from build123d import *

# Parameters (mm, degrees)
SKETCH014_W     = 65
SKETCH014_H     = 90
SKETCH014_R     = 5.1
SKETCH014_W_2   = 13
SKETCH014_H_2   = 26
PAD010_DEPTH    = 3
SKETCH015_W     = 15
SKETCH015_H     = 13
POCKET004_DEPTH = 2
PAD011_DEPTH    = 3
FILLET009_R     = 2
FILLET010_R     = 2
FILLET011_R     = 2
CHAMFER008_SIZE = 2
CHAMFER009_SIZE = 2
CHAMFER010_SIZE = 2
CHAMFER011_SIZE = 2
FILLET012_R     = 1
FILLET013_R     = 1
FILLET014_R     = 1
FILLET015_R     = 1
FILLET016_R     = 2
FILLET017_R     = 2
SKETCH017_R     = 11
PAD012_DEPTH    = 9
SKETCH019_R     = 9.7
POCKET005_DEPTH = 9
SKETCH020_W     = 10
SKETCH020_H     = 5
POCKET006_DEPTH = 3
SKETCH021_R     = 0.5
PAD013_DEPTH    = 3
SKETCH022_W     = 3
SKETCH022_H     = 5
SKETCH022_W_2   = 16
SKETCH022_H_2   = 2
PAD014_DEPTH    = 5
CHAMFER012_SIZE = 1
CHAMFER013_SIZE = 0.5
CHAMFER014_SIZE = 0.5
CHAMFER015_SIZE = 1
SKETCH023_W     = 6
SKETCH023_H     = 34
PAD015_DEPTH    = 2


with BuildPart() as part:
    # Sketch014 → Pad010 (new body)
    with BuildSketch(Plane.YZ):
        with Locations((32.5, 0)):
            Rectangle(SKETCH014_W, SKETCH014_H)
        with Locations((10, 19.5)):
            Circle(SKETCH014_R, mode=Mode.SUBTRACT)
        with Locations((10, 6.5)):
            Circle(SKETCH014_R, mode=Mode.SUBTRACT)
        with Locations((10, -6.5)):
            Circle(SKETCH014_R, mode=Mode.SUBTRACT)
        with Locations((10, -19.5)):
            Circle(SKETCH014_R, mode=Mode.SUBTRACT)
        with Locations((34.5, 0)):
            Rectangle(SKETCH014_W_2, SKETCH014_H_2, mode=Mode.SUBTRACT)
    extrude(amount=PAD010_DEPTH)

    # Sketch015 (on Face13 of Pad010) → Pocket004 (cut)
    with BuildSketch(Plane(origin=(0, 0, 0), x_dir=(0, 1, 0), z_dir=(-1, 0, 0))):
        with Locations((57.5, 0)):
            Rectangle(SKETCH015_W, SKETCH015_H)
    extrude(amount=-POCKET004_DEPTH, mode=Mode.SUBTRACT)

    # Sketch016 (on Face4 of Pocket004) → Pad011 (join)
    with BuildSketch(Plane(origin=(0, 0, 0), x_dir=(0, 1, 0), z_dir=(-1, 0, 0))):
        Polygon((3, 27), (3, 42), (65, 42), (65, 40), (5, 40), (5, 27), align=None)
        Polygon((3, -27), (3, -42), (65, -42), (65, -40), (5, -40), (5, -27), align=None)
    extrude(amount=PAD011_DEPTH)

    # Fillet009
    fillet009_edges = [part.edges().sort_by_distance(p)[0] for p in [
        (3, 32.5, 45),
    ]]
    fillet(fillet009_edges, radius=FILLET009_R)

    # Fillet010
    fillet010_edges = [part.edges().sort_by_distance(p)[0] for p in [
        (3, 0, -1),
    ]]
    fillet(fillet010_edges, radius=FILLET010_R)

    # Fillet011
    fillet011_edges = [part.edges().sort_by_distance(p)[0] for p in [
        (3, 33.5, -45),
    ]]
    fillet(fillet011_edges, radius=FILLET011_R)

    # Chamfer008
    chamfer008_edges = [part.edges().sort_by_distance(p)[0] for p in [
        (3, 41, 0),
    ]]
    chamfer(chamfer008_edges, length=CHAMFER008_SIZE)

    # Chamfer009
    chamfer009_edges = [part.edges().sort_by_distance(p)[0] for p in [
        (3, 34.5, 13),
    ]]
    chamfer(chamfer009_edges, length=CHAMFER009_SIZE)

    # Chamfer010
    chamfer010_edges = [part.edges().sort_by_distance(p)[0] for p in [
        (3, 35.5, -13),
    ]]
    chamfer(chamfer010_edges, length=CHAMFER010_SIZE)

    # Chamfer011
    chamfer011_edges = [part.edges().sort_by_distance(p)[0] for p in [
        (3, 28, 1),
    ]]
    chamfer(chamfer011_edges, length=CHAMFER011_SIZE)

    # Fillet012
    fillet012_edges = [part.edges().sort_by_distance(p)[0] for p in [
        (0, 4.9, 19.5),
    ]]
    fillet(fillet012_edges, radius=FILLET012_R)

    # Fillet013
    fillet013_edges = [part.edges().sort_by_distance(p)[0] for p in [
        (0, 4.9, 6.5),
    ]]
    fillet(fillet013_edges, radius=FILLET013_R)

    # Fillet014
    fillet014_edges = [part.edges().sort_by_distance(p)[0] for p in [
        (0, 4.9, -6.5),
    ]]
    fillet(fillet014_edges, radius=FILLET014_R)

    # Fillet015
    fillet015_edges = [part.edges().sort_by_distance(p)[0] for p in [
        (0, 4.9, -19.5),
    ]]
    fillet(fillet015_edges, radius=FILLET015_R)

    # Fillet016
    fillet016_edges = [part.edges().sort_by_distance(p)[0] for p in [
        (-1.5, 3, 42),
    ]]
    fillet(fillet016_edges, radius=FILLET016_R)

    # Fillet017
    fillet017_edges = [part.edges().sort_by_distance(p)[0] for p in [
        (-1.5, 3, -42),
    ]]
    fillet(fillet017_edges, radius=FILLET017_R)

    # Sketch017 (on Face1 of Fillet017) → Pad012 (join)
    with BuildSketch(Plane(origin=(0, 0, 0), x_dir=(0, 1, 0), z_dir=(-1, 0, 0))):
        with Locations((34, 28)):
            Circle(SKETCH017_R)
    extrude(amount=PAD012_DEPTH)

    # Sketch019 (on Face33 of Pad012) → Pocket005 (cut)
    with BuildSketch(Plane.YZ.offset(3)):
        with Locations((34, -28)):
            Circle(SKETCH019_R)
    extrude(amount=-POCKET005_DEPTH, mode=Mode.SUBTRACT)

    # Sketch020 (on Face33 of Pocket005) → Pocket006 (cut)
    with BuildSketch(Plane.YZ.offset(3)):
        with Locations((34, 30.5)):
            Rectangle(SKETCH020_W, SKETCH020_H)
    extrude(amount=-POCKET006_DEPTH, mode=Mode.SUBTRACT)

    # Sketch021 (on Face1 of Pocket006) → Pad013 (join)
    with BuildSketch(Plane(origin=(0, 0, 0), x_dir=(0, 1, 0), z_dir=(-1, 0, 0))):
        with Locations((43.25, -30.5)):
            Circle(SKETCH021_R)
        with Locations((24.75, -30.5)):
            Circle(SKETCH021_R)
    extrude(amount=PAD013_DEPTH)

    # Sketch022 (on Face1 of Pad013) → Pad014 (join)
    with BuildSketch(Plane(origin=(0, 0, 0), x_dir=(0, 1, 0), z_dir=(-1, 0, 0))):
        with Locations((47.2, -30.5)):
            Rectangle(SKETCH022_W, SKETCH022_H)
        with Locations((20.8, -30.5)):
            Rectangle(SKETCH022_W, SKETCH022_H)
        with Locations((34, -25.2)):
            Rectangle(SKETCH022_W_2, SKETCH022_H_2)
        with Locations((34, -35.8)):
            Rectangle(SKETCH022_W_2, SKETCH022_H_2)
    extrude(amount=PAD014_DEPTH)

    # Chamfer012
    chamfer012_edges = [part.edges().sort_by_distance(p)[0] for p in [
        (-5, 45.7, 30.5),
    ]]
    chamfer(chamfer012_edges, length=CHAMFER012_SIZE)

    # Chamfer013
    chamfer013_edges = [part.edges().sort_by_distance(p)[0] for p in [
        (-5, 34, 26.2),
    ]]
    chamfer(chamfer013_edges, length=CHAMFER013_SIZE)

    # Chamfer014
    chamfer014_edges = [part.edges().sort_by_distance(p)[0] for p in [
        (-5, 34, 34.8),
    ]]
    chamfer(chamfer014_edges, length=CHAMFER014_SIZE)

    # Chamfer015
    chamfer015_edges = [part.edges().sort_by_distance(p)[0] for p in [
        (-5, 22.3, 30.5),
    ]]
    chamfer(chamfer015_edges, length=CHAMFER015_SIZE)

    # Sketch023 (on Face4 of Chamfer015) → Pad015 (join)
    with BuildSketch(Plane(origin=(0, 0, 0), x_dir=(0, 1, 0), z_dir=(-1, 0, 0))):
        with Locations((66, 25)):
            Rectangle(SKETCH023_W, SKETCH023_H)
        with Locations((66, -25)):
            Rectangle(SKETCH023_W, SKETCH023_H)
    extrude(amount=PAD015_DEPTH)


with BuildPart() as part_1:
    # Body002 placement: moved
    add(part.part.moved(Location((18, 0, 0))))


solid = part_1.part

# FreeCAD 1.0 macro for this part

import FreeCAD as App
import Part
import Sketcher

V = App.Vector


def edges_at(feature, points):
    """Names of the edges that pass closest to the given points."""
    edges = feature.Shape.Edges
    near = lambda p: min(range(len(edges)), key=lambda i: edges[i].distToShape(Part.Vertex(*p))[0])
    return sorted({f"Edge{near(p) + 1}" for p in points})


def add_polygon(sketch, points):
    """Adds a closed chain of lines whose ends are joined by coincident constraints."""
    first, n = sketch.GeometryCount, len(points)
    for a, b in zip(points, points[1:] + points[:1]):
        sketch.addGeometry(Part.LineSegment(App.Vector(*a, 0), App.Vector(*b, 0)), False)
    for i in range(n):
        sketch.addConstraint(Sketcher.Constraint("Coincident", first + i, 2, first + (i + 1) % n, 1))

doc = App.newDocument("Part")
params = doc.addObject("Spreadsheet::Sheet", "Params")
for row, (alias, value) in enumerate([
    ("sketch1_diameter", "10.2 mm"),
    ("sketch1_width", "65 mm"),
    ("sketch1_width2", "13 mm"),
    ("sketch1_height", "90 mm"),
    ("sketch1_height2", "26 mm"),
    ("pad1_length", "3 mm"),
    ("sketch2_width", "15 mm"),
    ("sketch2_height", "13 mm"),
    ("pocket1_length", "2 mm"),
    ("sketch3_width", "2 mm"),
    ("sketch3_width2", "60 mm"),
    ("sketch3_height", "15 mm"),
    ("pad2_length", "3 mm"),
    ("fillet_radius", "2 mm"),
    ("fillet2_radius", "2 mm"),
    ("fillet3_radius", "2 mm"),
    ("chamfer_size", "2 mm"),
    ("chamfer2_size", "2 mm"),
    ("chamfer3_size", "2 mm"),
    ("chamfer4_size", "2 mm"),
    ("fillet4_radius", "1 mm"),
    ("fillet5_radius", "1 mm"),
    ("fillet6_radius", "1 mm"),
    ("fillet7_radius", "1 mm"),
    ("fillet8_radius", "2 mm"),
    ("fillet9_radius", "2 mm"),
    ("sketch4_diameter", "22 mm"),
    ("pad3_length", "9 mm"),
    ("sketch5_diameter", "19.4 mm"),
    ("pocket2_length", "9 mm"),
    ("sketch6_width", "10 mm"),
    ("sketch6_height", "5 mm"),
    ("pocket3_length", "3 mm"),
    ("sketch7_diameter", "1 mm"),
    ("pad4_length", "3 mm"),
    ("sketch8_width", "3 mm"),
    ("sketch8_width2", "16 mm"),
    ("sketch8_height", "5 mm"),
    ("sketch8_height2", "2 mm"),
    ("pad5_length", "5 mm"),
    ("chamfer5_size", "1 mm"),
    ("chamfer6_size", "0.5 mm"),
    ("chamfer7_size", "0.5 mm"),
    ("chamfer8_size", "1 mm"),
    ("sketch9_width", "6 mm"),
    ("sketch9_height", "34 mm"),
    ("pad6_length", "2 mm"),
], start=1):
    params.set(f"A{row}", alias)
    params.set(f"B{row}", "=" + value)
    params.setAlias(f"B{row}", alias)

body = doc.addObject("PartDesign::Body", "Body")

sketch1 = body.newObject("Sketcher::SketchObject", "Sketch")
sketch1.AttachmentSupport = (doc.getObject("YZ_Plane"), [""])
sketch1.MapMode = "FlatFace"
add_polygon(sketch1, [(0, 45), (0, -45), (65, -45), (65, 45)])
sketch1.addGeometry(Part.Circle(V(10, -19.5, 0), V(0, 0, 1), 5.1), False)
sketch1.addGeometry(Part.Circle(V(10, -6.5, 0), V(0, 0, 1), 5.1), False)
sketch1.addGeometry(Part.Circle(V(10, 6.5, 0), V(0, 0, 1), 5.1), False)
sketch1.addGeometry(Part.Circle(V(10, 19.5, 0), V(0, 0, 1), 5.1), False)
add_polygon(sketch1, [(41, -13), (28, -13), (28, 13), (41, 13)])
sketch1.addConstraint(Sketcher.Constraint("Vertical", 0))
sketch1.addConstraint(Sketcher.Constraint("Horizontal", 1))
sketch1.addConstraint(Sketcher.Constraint("Vertical", 2))
sketch1.addConstraint(Sketcher.Constraint("Horizontal", 3))
sketch1.addConstraint(Sketcher.Constraint("Horizontal", 8))
sketch1.addConstraint(Sketcher.Constraint("Vertical", 9))
sketch1.addConstraint(Sketcher.Constraint("Horizontal", 10))
sketch1.addConstraint(Sketcher.Constraint("Vertical", 11))
sketch1.addConstraint(Sketcher.Constraint("Equal", 4, 5))
sketch1.addConstraint(Sketcher.Constraint("Equal", 5, 6))
sketch1.addConstraint(Sketcher.Constraint("Equal", 6, 7))
sketch1.addConstraint(Sketcher.Constraint("Symmetric", 0, 2, 3, 2, -1, 1))
sketch1.addConstraint(Sketcher.Constraint("Symmetric", 5, 3, 6, 3, -1))
sketch1.addConstraint(Sketcher.Constraint("Symmetric", 4, 3, 7, 3, -1))
sketch1.addConstraint(Sketcher.Constraint("Vertical", 4, 3, 5, 3))
sketch1.addConstraint(Sketcher.Constraint("Diameter", 4, 10.2))
sketch1.addConstraint(Sketcher.Constraint("DistanceX", 1, 1, 1, 2, 65.0))
sketch1.addConstraint(Sketcher.Constraint("DistanceX", 8, 2, 8, 1, 13.0))
sketch1.addConstraint(Sketcher.Constraint("DistanceY", 0, 2, 0, 1, 90.0))
sketch1.addConstraint(Sketcher.Constraint("DistanceY", 9, 1, 9, 2, 26.0))
sketch1.addConstraint(Sketcher.Constraint("DistanceX", -1, 1, 4, 3, 10.0))
sketch1.addConstraint(Sketcher.Constraint("DistanceX", -1, 1, 8, 2, 28.0))
sketch1.addConstraint(Sketcher.Constraint("DistanceY", 8, 2, -1, 1, 13.0))
sketch1.addConstraint(Sketcher.Constraint("DistanceY", 4, 3, 5, 3, 13.0))
sketch1.addConstraint(Sketcher.Constraint("DistanceY", 5, 3, 6, 3, 13.0))
sketch1.setExpression("Constraints[23]", "Params.sketch1_diameter")
sketch1.setExpression("Constraints[24]", "Params.sketch1_width")
sketch1.setExpression("Constraints[25]", "Params.sketch1_width2")
sketch1.setExpression("Constraints[26]", "Params.sketch1_height")
sketch1.setExpression("Constraints[27]", "Params.sketch1_height2")
pad1 = body.newObject("PartDesign::Pad", "Pad")
pad1.Profile = sketch1
pad1.setExpression("Length", "Params.pad1_length")

sketch2 = body.newObject("Sketcher::SketchObject", "Sketch001")
sketch2.AttachmentSupport = (doc.getObject("YZ_Plane"), [""])
sketch2.MapMode = "FlatFace"
add_polygon(sketch2, [(50, -6.5), (50, 6.5), (65, 6.5), (65, -6.5)])
sketch2.addConstraint(Sketcher.Constraint("Vertical", 0))
sketch2.addConstraint(Sketcher.Constraint("Horizontal", 1))
sketch2.addConstraint(Sketcher.Constraint("Vertical", 2))
sketch2.addConstraint(Sketcher.Constraint("Horizontal", 3))
sketch2.addConstraint(Sketcher.Constraint("DistanceX", 1, 1, 1, 2, 15.0))
sketch2.addConstraint(Sketcher.Constraint("DistanceY", 0, 1, 0, 2, 13.0))
sketch2.addConstraint(Sketcher.Constraint("DistanceX", -1, 1, 0, 2, 50.0))
sketch2.addConstraint(Sketcher.Constraint("DistanceY", -1, 1, 0, 2, 6.5))
sketch2.setExpression("Constraints[8]", "Params.sketch2_width")
sketch2.setExpression("Constraints[9]", "Params.sketch2_height")
pocket1 = body.newObject("PartDesign::Pocket", "Pocket")
pocket1.Profile = sketch2
pocket1.setExpression("Length", "Params.pocket1_length")
pocket1.Reversed = True

sketch3 = body.newObject("Sketcher::SketchObject", "Sketch002")
sketch3.AttachmentSupport = (doc.getObject("YZ_Plane"), [""])
sketch3.MapMode = "FlatFace"
add_polygon(sketch3, [(3, -42), (3, -27), (5, -27), (5, -40), (65, -40), (65, -42)])
add_polygon(sketch3, [(3, 27), (3, 42), (65, 42), (65, 40), (5, 40), (5, 27)])
sketch3.addConstraint(Sketcher.Constraint("Vertical", 0))
sketch3.addConstraint(Sketcher.Constraint("Horizontal", 1))
sketch3.addConstraint(Sketcher.Constraint("Vertical", 2))
sketch3.addConstraint(Sketcher.Constraint("Horizontal", 3))
sketch3.addConstraint(Sketcher.Constraint("Vertical", 4))
sketch3.addConstraint(Sketcher.Constraint("Horizontal", 5))
sketch3.addConstraint(Sketcher.Constraint("Vertical", 6))
sketch3.addConstraint(Sketcher.Constraint("Horizontal", 7))
sketch3.addConstraint(Sketcher.Constraint("Vertical", 8))
sketch3.addConstraint(Sketcher.Constraint("Horizontal", 9))
sketch3.addConstraint(Sketcher.Constraint("Vertical", 10))
sketch3.addConstraint(Sketcher.Constraint("Horizontal", 11))
sketch3.addConstraint(Sketcher.Constraint("Symmetric", 5, 2, 6, 2, -1))
sketch3.addConstraint(Sketcher.Constraint("Symmetric", 3, 2, 8, 2, -1))
sketch3.addConstraint(Sketcher.Constraint("Symmetric", 1, 2, 10, 2, -1))
sketch3.addConstraint(Sketcher.Constraint("Equal", 11, 4))
sketch3.addConstraint(Sketcher.Constraint("DistanceX", 1, 1, 1, 2, 2.0))
sketch3.addConstraint(Sketcher.Constraint("DistanceX", 3, 1, 3, 2, 60.0))
sketch3.addConstraint(Sketcher.Constraint("DistanceY", 0, 1, 0, 2, 15.0))
sketch3.addConstraint(Sketcher.Constraint("DistanceX", -1, 1, 0, 2, 3.0))
sketch3.addConstraint(Sketcher.Constraint("DistanceY", 0, 2, -1, 1, 27.0))
sketch3.setExpression("Constraints[28]", "Params.sketch3_width")
sketch3.setExpression("Constraints[29]", "Params.sketch3_width2")
sketch3.setExpression("Constraints[30]", "Params.sketch3_height")
pad2 = body.newObject("PartDesign::Pad", "Pad001")
pad2.Profile = sketch3
pad2.setExpression("Length", "Params.pad2_length")
pad2.Reversed = True
doc.recompute()

fillet = body.newObject("PartDesign::Fillet", "Fillet")
fillet.Base = (pad2, edges_at(pad2, [(3, 32.5, 45)]))
fillet.setExpression("Radius", "Params.fillet_radius")
doc.recompute()

fillet2 = body.newObject("PartDesign::Fillet", "Fillet001")
fillet2.Base = (fillet, edges_at(fillet, [(3, 0, -1)]))
fillet2.setExpression("Radius", "Params.fillet2_radius")
doc.recompute()

fillet3 = body.newObject("PartDesign::Fillet", "Fillet002")
fillet3.Base = (fillet2, edges_at(fillet2, [(3, 33.5, -45)]))
fillet3.setExpression("Radius", "Params.fillet3_radius")
doc.recompute()

chamfer = body.newObject("PartDesign::Chamfer", "Chamfer")
chamfer.Base = (fillet3, edges_at(fillet3, [(3, 41, 0)]))
chamfer.setExpression("Size", "Params.chamfer_size")
doc.recompute()

chamfer2 = body.newObject("PartDesign::Chamfer", "Chamfer001")
chamfer2.Base = (chamfer, edges_at(chamfer, [(3, 35.5, 13)]))
chamfer2.setExpression("Size", "Params.chamfer2_size")
doc.recompute()

chamfer3 = body.newObject("PartDesign::Chamfer", "Chamfer002")
chamfer3.Base = (chamfer2, edges_at(chamfer2, [(3, 35.5, -13)]))
chamfer3.setExpression("Size", "Params.chamfer3_size")
doc.recompute()

chamfer4 = body.newObject("PartDesign::Chamfer", "Chamfer003")
chamfer4.Base = (chamfer3, edges_at(chamfer3, [(3, 28, 0)]))
chamfer4.setExpression("Size", "Params.chamfer4_size")
doc.recompute()

fillet4 = body.newObject("PartDesign::Fillet", "Fillet003")
fillet4.Base = (chamfer4, edges_at(chamfer4, [(0, 4.9, 19.5)]))
fillet4.setExpression("Radius", "Params.fillet4_radius")
doc.recompute()

fillet5 = body.newObject("PartDesign::Fillet", "Fillet004")
fillet5.Base = (fillet4, edges_at(fillet4, [(0, 4.9, 6.5)]))
fillet5.setExpression("Radius", "Params.fillet5_radius")
doc.recompute()

fillet6 = body.newObject("PartDesign::Fillet", "Fillet005")
fillet6.Base = (fillet5, edges_at(fillet5, [(0, 4.9, -6.5)]))
fillet6.setExpression("Radius", "Params.fillet6_radius")
doc.recompute()

fillet7 = body.newObject("PartDesign::Fillet", "Fillet006")
fillet7.Base = (fillet6, edges_at(fillet6, [(0, 4.9, -19.5)]))
fillet7.setExpression("Radius", "Params.fillet7_radius")
doc.recompute()

fillet8 = body.newObject("PartDesign::Fillet", "Fillet007")
fillet8.Base = (fillet7, edges_at(fillet7, [(-1.5, 3, 42)]))
fillet8.setExpression("Radius", "Params.fillet8_radius")
doc.recompute()

fillet9 = body.newObject("PartDesign::Fillet", "Fillet008")
fillet9.Base = (fillet8, edges_at(fillet8, [(-1.5, 3, -42)]))
fillet9.setExpression("Radius", "Params.fillet9_radius")

sketch4 = body.newObject("Sketcher::SketchObject", "Sketch003")
sketch4.AttachmentSupport = (doc.getObject("YZ_Plane"), [""])
sketch4.MapMode = "FlatFace"
sketch4.addGeometry(Part.Circle(V(34, -28, 0), V(0, 0, 1), 11), False)
sketch4.addConstraint(Sketcher.Constraint("Diameter", 0, 22.0))
sketch4.addConstraint(Sketcher.Constraint("DistanceX", -1, 1, 0, 3, 34.0))
sketch4.addConstraint(Sketcher.Constraint("DistanceY", 0, 3, -1, 1, 28.0))
sketch4.setExpression("Constraints[0]", "Params.sketch4_diameter")
pad3 = body.newObject("PartDesign::Pad", "Pad002")
pad3.Profile = sketch4
pad3.setExpression("Length", "Params.pad3_length")
pad3.Reversed = True

sketch5 = body.newObject("Sketcher::SketchObject", "Sketch004")
sketch5.AttachmentSupport = (doc.getObject("YZ_Plane"), [""])
sketch5.MapMode = "FlatFace"
sketch5.AttachmentOffset = App.Placement(V(0, 0, 3), App.Rotation())
sketch5.addGeometry(Part.Circle(V(34, -28, 0), V(0, 0, 1), 9.7), False)
sketch5.addConstraint(Sketcher.Constraint("Diameter", 0, 19.4))
sketch5.addConstraint(Sketcher.Constraint("DistanceX", -1, 1, 0, 3, 34.0))
sketch5.addConstraint(Sketcher.Constraint("DistanceY", 0, 3, -1, 1, 28.0))
sketch5.setExpression("Constraints[0]", "Params.sketch5_diameter")
pocket2 = body.newObject("PartDesign::Pocket", "Pocket001")
pocket2.Profile = sketch5
pocket2.setExpression("Length", "Params.pocket2_length")

sketch6 = body.newObject("Sketcher::SketchObject", "Sketch005")
sketch6.AttachmentSupport = (doc.getObject("YZ_Plane"), [""])
sketch6.MapMode = "FlatFace"
sketch6.AttachmentOffset = App.Placement(V(0, 0, 3), App.Rotation())
add_polygon(sketch6, [(29, 33), (29, 28), (39, 28), (39, 33)])
sketch6.addConstraint(Sketcher.Constraint("Vertical", 0))
sketch6.addConstraint(Sketcher.Constraint("Horizontal", 1))
sketch6.addConstraint(Sketcher.Constraint("Vertical", 2))
sketch6.addConstraint(Sketcher.Constraint("Horizontal", 3))
sketch6.addConstraint(Sketcher.Constraint("DistanceX", 1, 1, 1, 2, 10.0))
sketch6.addConstraint(Sketcher.Constraint("DistanceY", 0, 2, 0, 1, 5.0))
sketch6.addConstraint(Sketcher.Constraint("DistanceX", -1, 1, 0, 2, 29.0))
sketch6.addConstraint(Sketcher.Constraint("DistanceY", -1, 1, 0, 2, 28.0))
sketch6.setExpression("Constraints[8]", "Params.sketch6_width")
sketch6.setExpression("Constraints[9]", "Params.sketch6_height")
pocket3 = body.newObject("PartDesign::Pocket", "Pocket002")
pocket3.Profile = sketch6
pocket3.setExpression("Length", "Params.pocket3_length")

sketch7 = body.newObject("Sketcher::SketchObject", "Sketch006")
sketch7.AttachmentSupport = (doc.getObject("YZ_Plane"), [""])
sketch7.MapMode = "FlatFace"
sketch7.addGeometry(Part.Circle(V(43.25, 30.5, 0), V(0, 0, 1), 0.5), False)
sketch7.addGeometry(Part.Circle(V(24.75, 30.5, 0), V(0, 0, 1), 0.5), False)
sketch7.addConstraint(Sketcher.Constraint("Equal", 0, 1))
sketch7.addConstraint(Sketcher.Constraint("Horizontal", 0, 3, 1, 3))
sketch7.addConstraint(Sketcher.Constraint("Diameter", 0, 1.0))
sketch7.addConstraint(Sketcher.Constraint("DistanceY", -1, 1, 0, 3, 30.5))
sketch7.addConstraint(Sketcher.Constraint("DistanceX", 1, 3, 0, 3, 18.5))
sketch7.addConstraint(Sketcher.Constraint("DistanceX", -1, 1, 0, 3, 43.25))
sketch7.setExpression("Constraints[2]", "Params.sketch7_diameter")
pad4 = body.newObject("PartDesign::Pad", "Pad003")
pad4.Profile = sketch7
pad4.setExpression("Length", "Params.pad4_length")
pad4.Reversed = True

sketch8 = body.newObject("Sketcher::SketchObject", "Sketch007")
sketch8.AttachmentSupport = (doc.getObject("YZ_Plane"), [""])
sketch8.MapMode = "FlatFace"
add_polygon(sketch8, [(45.7, 28), (45.7, 33), (48.7, 33), (48.7, 28)])
add_polygon(sketch8, [(19.3, 28), (19.3, 33), (22.3, 33), (22.3, 28)])
add_polygon(sketch8, [(26, 24.2), (26, 26.2), (42, 26.2), (42, 24.2)])
add_polygon(sketch8, [(26, 34.8), (26, 36.8), (42, 36.8), (42, 34.8)])
sketch8.addConstraint(Sketcher.Constraint("Vertical", 0))
sketch8.addConstraint(Sketcher.Constraint("Horizontal", 1))
sketch8.addConstraint(Sketcher.Constraint("Vertical", 2))
sketch8.addConstraint(Sketcher.Constraint("Horizontal", 3))
sketch8.addConstraint(Sketcher.Constraint("Vertical", 4))
sketch8.addConstraint(Sketcher.Constraint("Horizontal", 5))
sketch8.addConstraint(Sketcher.Constraint("Vertical", 6))
sketch8.addConstraint(Sketcher.Constraint("Horizontal", 7))
sketch8.addConstraint(Sketcher.Constraint("Vertical", 8))
sketch8.addConstraint(Sketcher.Constraint("Horizontal", 9))
sketch8.addConstraint(Sketcher.Constraint("Vertical", 10))
sketch8.addConstraint(Sketcher.Constraint("Horizontal", 11))
sketch8.addConstraint(Sketcher.Constraint("Vertical", 12))
sketch8.addConstraint(Sketcher.Constraint("Horizontal", 13))
sketch8.addConstraint(Sketcher.Constraint("Vertical", 14))
sketch8.addConstraint(Sketcher.Constraint("Horizontal", 15))
sketch8.addConstraint(Sketcher.Constraint("Horizontal", 1, 2, 4, 2))
sketch8.addConstraint(Sketcher.Constraint("Horizontal", 3, 2, 6, 2))
sketch8.addConstraint(Sketcher.Constraint("Vertical", 11, 2, 12, 2))
sketch8.addConstraint(Sketcher.Constraint("Vertical", 10, 2, 13, 2))
sketch8.addConstraint(Sketcher.Constraint("Equal", 3, 5))
sketch8.addConstraint(Sketcher.Constraint("Equal", 10, 12))
sketch8.addConstraint(Sketcher.Constraint("DistanceX", 1, 1, 1, 2, 3.0))
sketch8.addConstraint(Sketcher.Constraint("DistanceX", 9, 1, 9, 2, 16.0))
sketch8.addConstraint(Sketcher.Constraint("DistanceY", 0, 1, 0, 2, 5.0))
sketch8.addConstraint(Sketcher.Constraint("DistanceY", 8, 1, 8, 2, 2.0))
sketch8.addConstraint(Sketcher.Constraint("DistanceY", -1, 1, 0, 2, 33.0))
sketch8.addConstraint(Sketcher.Constraint("DistanceX", -1, 1, 8, 2, 26.0))
sketch8.addConstraint(Sketcher.Constraint("DistanceX", -1, 1, 0, 2, 45.7))
sketch8.addConstraint(Sketcher.Constraint("DistanceX", -1, 1, 4, 2, 19.3))
sketch8.addConstraint(Sketcher.Constraint("DistanceY", -1, 1, 8, 2, 26.2))
sketch8.addConstraint(Sketcher.Constraint("DistanceY", -1, 1, 12, 2, 36.8))
sketch8.setExpression("Constraints[38]", "Params.sketch8_width")
sketch8.setExpression("Constraints[39]", "Params.sketch8_width2")
sketch8.setExpression("Constraints[40]", "Params.sketch8_height")
sketch8.setExpression("Constraints[41]", "Params.sketch8_height2")
pad5 = body.newObject("PartDesign::Pad", "Pad004")
pad5.Profile = sketch8
pad5.setExpression("Length", "Params.pad5_length")
pad5.Reversed = True
doc.recompute()

chamfer5 = body.newObject("PartDesign::Chamfer", "Chamfer004")
chamfer5.Base = (pad5, edges_at(pad5, [(-5, 45.7, 30.5)]))
chamfer5.setExpression("Size", "Params.chamfer5_size")
doc.recompute()

chamfer6 = body.newObject("PartDesign::Chamfer", "Chamfer005")
chamfer6.Base = (chamfer5, edges_at(chamfer5, [(-5, 34, 26.2)]))
chamfer6.setExpression("Size", "Params.chamfer6_size")
doc.recompute()

chamfer7 = body.newObject("PartDesign::Chamfer", "Chamfer006")
chamfer7.Base = (chamfer6, edges_at(chamfer6, [(-5, 34, 34.8)]))
chamfer7.setExpression("Size", "Params.chamfer7_size")
doc.recompute()

chamfer8 = body.newObject("PartDesign::Chamfer", "Chamfer007")
chamfer8.Base = (chamfer7, edges_at(chamfer7, [(-5, 22.3, 30.5)]))
chamfer8.setExpression("Size", "Params.chamfer8_size")

sketch9 = body.newObject("Sketcher::SketchObject", "Sketch008")
sketch9.AttachmentSupport = (doc.getObject("YZ_Plane"), [""])
sketch9.MapMode = "FlatFace"
add_polygon(sketch9, [(63, -42), (63, -8), (69, -8), (69, -42)])
add_polygon(sketch9, [(63, 8), (63, 42), (69, 42), (69, 8)])
sketch9.addConstraint(Sketcher.Constraint("Vertical", 0))
sketch9.addConstraint(Sketcher.Constraint("Horizontal", 1))
sketch9.addConstraint(Sketcher.Constraint("Vertical", 2))
sketch9.addConstraint(Sketcher.Constraint("Horizontal", 3))
sketch9.addConstraint(Sketcher.Constraint("Vertical", 4))
sketch9.addConstraint(Sketcher.Constraint("Horizontal", 5))
sketch9.addConstraint(Sketcher.Constraint("Vertical", 6))
sketch9.addConstraint(Sketcher.Constraint("Horizontal", 7))
sketch9.addConstraint(Sketcher.Constraint("Symmetric", 3, 2, 4, 2, -1))
sketch9.addConstraint(Sketcher.Constraint("Symmetric", 1, 2, 6, 2, -1))
sketch9.addConstraint(Sketcher.Constraint("DistanceX", 1, 1, 1, 2, 6.0))
sketch9.addConstraint(Sketcher.Constraint("DistanceY", 0, 1, 0, 2, 34.0))
sketch9.addConstraint(Sketcher.Constraint("DistanceX", -1, 1, 0, 2, 63.0))
sketch9.addConstraint(Sketcher.Constraint("DistanceY", 0, 2, -1, 1, 8.0))
sketch9.setExpression("Constraints[18]", "Params.sketch9_width")
sketch9.setExpression("Constraints[19]", "Params.sketch9_height")
pad6 = body.newObject("PartDesign::Pad", "Pad005")
pad6.Profile = sketch9
pad6.setExpression("Length", "Params.pad6_length")
pad6.Reversed = True
body2 = doc.addObject("PartDesign::Body", "Body001")
doc.recompute()

body.Placement = App.Placement(V(18, 0, 0), App.Rotation(V(0, 0, 1), 0))
boolean = body2.newObject("PartDesign::Boolean", "Boolean")
boolean.Type = "Fuse"
boolean.addObjects([body])

doc.recompute()
